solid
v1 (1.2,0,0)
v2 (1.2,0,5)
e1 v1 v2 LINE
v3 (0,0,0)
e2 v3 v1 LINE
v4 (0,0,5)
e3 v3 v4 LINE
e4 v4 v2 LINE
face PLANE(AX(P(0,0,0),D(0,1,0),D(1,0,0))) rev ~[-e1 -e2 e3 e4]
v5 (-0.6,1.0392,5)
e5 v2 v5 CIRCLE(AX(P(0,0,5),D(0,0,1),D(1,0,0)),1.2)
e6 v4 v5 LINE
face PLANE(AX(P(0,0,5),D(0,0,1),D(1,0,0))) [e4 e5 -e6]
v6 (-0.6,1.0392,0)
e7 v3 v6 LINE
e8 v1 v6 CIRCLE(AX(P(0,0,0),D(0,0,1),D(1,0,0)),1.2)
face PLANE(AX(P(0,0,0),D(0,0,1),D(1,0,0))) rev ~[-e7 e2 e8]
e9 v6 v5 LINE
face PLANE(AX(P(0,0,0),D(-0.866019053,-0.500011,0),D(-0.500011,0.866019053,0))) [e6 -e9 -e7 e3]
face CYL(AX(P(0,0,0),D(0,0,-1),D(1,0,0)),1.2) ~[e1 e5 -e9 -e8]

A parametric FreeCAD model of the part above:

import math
import FreeCAD as App
import Part
import Sketcher
from FreeCAD import Vector
Q = App.Units.Quantity

doc = App.newDocument("Part")
body = doc.addObject("PartDesign::Body", "Body")

# Sketch on XY plane
sketch1 = body.newObject("Sketcher::SketchObject", "Sketch")
sketch1.AttachmentSupport = (doc.getObject("XY_Plane"), [""])
sketch1.MapMode = "FlatFace"
sketch1.addGeometry([
    Part.LineSegment(Vector(-0.6, 1, 0), Vector(0, 0, 0)),
    Part.LineSegment(Vector(0, 0, 0), Vector(1.2, 0, 0)),
    Part.ArcOfCircle(Part.Circle(Vector(0, 0, 0), Vector(0, 0, 1), 1.2), math.radians(0), math.radians(120)),
], False)
sketch1.addConstraint([
    Sketcher.Constraint("Coincident", 0, 2, 1, 1),
    Sketcher.Constraint("Coincident", 1, 2, 2, 1),
    Sketcher.Constraint("Coincident", 2, 2, 0, 1),
    Sketcher.Constraint("Horizontal", 1),
    Sketcher.Constraint("Coincident", 2, 3, -1, 1),
    Sketcher.Constraint("Coincident", 0, 2, -1, 1),
    Sketcher.Constraint("Radius", 2, 1.2),
    Sketcher.Constraint("Angle", 0, Q("-59.9993 deg")),
])
pad1 = body.newObject("PartDesign::Pad", "Pad")
pad1.Profile = sketch1
pad1.Length = 5

doc.recompute()
